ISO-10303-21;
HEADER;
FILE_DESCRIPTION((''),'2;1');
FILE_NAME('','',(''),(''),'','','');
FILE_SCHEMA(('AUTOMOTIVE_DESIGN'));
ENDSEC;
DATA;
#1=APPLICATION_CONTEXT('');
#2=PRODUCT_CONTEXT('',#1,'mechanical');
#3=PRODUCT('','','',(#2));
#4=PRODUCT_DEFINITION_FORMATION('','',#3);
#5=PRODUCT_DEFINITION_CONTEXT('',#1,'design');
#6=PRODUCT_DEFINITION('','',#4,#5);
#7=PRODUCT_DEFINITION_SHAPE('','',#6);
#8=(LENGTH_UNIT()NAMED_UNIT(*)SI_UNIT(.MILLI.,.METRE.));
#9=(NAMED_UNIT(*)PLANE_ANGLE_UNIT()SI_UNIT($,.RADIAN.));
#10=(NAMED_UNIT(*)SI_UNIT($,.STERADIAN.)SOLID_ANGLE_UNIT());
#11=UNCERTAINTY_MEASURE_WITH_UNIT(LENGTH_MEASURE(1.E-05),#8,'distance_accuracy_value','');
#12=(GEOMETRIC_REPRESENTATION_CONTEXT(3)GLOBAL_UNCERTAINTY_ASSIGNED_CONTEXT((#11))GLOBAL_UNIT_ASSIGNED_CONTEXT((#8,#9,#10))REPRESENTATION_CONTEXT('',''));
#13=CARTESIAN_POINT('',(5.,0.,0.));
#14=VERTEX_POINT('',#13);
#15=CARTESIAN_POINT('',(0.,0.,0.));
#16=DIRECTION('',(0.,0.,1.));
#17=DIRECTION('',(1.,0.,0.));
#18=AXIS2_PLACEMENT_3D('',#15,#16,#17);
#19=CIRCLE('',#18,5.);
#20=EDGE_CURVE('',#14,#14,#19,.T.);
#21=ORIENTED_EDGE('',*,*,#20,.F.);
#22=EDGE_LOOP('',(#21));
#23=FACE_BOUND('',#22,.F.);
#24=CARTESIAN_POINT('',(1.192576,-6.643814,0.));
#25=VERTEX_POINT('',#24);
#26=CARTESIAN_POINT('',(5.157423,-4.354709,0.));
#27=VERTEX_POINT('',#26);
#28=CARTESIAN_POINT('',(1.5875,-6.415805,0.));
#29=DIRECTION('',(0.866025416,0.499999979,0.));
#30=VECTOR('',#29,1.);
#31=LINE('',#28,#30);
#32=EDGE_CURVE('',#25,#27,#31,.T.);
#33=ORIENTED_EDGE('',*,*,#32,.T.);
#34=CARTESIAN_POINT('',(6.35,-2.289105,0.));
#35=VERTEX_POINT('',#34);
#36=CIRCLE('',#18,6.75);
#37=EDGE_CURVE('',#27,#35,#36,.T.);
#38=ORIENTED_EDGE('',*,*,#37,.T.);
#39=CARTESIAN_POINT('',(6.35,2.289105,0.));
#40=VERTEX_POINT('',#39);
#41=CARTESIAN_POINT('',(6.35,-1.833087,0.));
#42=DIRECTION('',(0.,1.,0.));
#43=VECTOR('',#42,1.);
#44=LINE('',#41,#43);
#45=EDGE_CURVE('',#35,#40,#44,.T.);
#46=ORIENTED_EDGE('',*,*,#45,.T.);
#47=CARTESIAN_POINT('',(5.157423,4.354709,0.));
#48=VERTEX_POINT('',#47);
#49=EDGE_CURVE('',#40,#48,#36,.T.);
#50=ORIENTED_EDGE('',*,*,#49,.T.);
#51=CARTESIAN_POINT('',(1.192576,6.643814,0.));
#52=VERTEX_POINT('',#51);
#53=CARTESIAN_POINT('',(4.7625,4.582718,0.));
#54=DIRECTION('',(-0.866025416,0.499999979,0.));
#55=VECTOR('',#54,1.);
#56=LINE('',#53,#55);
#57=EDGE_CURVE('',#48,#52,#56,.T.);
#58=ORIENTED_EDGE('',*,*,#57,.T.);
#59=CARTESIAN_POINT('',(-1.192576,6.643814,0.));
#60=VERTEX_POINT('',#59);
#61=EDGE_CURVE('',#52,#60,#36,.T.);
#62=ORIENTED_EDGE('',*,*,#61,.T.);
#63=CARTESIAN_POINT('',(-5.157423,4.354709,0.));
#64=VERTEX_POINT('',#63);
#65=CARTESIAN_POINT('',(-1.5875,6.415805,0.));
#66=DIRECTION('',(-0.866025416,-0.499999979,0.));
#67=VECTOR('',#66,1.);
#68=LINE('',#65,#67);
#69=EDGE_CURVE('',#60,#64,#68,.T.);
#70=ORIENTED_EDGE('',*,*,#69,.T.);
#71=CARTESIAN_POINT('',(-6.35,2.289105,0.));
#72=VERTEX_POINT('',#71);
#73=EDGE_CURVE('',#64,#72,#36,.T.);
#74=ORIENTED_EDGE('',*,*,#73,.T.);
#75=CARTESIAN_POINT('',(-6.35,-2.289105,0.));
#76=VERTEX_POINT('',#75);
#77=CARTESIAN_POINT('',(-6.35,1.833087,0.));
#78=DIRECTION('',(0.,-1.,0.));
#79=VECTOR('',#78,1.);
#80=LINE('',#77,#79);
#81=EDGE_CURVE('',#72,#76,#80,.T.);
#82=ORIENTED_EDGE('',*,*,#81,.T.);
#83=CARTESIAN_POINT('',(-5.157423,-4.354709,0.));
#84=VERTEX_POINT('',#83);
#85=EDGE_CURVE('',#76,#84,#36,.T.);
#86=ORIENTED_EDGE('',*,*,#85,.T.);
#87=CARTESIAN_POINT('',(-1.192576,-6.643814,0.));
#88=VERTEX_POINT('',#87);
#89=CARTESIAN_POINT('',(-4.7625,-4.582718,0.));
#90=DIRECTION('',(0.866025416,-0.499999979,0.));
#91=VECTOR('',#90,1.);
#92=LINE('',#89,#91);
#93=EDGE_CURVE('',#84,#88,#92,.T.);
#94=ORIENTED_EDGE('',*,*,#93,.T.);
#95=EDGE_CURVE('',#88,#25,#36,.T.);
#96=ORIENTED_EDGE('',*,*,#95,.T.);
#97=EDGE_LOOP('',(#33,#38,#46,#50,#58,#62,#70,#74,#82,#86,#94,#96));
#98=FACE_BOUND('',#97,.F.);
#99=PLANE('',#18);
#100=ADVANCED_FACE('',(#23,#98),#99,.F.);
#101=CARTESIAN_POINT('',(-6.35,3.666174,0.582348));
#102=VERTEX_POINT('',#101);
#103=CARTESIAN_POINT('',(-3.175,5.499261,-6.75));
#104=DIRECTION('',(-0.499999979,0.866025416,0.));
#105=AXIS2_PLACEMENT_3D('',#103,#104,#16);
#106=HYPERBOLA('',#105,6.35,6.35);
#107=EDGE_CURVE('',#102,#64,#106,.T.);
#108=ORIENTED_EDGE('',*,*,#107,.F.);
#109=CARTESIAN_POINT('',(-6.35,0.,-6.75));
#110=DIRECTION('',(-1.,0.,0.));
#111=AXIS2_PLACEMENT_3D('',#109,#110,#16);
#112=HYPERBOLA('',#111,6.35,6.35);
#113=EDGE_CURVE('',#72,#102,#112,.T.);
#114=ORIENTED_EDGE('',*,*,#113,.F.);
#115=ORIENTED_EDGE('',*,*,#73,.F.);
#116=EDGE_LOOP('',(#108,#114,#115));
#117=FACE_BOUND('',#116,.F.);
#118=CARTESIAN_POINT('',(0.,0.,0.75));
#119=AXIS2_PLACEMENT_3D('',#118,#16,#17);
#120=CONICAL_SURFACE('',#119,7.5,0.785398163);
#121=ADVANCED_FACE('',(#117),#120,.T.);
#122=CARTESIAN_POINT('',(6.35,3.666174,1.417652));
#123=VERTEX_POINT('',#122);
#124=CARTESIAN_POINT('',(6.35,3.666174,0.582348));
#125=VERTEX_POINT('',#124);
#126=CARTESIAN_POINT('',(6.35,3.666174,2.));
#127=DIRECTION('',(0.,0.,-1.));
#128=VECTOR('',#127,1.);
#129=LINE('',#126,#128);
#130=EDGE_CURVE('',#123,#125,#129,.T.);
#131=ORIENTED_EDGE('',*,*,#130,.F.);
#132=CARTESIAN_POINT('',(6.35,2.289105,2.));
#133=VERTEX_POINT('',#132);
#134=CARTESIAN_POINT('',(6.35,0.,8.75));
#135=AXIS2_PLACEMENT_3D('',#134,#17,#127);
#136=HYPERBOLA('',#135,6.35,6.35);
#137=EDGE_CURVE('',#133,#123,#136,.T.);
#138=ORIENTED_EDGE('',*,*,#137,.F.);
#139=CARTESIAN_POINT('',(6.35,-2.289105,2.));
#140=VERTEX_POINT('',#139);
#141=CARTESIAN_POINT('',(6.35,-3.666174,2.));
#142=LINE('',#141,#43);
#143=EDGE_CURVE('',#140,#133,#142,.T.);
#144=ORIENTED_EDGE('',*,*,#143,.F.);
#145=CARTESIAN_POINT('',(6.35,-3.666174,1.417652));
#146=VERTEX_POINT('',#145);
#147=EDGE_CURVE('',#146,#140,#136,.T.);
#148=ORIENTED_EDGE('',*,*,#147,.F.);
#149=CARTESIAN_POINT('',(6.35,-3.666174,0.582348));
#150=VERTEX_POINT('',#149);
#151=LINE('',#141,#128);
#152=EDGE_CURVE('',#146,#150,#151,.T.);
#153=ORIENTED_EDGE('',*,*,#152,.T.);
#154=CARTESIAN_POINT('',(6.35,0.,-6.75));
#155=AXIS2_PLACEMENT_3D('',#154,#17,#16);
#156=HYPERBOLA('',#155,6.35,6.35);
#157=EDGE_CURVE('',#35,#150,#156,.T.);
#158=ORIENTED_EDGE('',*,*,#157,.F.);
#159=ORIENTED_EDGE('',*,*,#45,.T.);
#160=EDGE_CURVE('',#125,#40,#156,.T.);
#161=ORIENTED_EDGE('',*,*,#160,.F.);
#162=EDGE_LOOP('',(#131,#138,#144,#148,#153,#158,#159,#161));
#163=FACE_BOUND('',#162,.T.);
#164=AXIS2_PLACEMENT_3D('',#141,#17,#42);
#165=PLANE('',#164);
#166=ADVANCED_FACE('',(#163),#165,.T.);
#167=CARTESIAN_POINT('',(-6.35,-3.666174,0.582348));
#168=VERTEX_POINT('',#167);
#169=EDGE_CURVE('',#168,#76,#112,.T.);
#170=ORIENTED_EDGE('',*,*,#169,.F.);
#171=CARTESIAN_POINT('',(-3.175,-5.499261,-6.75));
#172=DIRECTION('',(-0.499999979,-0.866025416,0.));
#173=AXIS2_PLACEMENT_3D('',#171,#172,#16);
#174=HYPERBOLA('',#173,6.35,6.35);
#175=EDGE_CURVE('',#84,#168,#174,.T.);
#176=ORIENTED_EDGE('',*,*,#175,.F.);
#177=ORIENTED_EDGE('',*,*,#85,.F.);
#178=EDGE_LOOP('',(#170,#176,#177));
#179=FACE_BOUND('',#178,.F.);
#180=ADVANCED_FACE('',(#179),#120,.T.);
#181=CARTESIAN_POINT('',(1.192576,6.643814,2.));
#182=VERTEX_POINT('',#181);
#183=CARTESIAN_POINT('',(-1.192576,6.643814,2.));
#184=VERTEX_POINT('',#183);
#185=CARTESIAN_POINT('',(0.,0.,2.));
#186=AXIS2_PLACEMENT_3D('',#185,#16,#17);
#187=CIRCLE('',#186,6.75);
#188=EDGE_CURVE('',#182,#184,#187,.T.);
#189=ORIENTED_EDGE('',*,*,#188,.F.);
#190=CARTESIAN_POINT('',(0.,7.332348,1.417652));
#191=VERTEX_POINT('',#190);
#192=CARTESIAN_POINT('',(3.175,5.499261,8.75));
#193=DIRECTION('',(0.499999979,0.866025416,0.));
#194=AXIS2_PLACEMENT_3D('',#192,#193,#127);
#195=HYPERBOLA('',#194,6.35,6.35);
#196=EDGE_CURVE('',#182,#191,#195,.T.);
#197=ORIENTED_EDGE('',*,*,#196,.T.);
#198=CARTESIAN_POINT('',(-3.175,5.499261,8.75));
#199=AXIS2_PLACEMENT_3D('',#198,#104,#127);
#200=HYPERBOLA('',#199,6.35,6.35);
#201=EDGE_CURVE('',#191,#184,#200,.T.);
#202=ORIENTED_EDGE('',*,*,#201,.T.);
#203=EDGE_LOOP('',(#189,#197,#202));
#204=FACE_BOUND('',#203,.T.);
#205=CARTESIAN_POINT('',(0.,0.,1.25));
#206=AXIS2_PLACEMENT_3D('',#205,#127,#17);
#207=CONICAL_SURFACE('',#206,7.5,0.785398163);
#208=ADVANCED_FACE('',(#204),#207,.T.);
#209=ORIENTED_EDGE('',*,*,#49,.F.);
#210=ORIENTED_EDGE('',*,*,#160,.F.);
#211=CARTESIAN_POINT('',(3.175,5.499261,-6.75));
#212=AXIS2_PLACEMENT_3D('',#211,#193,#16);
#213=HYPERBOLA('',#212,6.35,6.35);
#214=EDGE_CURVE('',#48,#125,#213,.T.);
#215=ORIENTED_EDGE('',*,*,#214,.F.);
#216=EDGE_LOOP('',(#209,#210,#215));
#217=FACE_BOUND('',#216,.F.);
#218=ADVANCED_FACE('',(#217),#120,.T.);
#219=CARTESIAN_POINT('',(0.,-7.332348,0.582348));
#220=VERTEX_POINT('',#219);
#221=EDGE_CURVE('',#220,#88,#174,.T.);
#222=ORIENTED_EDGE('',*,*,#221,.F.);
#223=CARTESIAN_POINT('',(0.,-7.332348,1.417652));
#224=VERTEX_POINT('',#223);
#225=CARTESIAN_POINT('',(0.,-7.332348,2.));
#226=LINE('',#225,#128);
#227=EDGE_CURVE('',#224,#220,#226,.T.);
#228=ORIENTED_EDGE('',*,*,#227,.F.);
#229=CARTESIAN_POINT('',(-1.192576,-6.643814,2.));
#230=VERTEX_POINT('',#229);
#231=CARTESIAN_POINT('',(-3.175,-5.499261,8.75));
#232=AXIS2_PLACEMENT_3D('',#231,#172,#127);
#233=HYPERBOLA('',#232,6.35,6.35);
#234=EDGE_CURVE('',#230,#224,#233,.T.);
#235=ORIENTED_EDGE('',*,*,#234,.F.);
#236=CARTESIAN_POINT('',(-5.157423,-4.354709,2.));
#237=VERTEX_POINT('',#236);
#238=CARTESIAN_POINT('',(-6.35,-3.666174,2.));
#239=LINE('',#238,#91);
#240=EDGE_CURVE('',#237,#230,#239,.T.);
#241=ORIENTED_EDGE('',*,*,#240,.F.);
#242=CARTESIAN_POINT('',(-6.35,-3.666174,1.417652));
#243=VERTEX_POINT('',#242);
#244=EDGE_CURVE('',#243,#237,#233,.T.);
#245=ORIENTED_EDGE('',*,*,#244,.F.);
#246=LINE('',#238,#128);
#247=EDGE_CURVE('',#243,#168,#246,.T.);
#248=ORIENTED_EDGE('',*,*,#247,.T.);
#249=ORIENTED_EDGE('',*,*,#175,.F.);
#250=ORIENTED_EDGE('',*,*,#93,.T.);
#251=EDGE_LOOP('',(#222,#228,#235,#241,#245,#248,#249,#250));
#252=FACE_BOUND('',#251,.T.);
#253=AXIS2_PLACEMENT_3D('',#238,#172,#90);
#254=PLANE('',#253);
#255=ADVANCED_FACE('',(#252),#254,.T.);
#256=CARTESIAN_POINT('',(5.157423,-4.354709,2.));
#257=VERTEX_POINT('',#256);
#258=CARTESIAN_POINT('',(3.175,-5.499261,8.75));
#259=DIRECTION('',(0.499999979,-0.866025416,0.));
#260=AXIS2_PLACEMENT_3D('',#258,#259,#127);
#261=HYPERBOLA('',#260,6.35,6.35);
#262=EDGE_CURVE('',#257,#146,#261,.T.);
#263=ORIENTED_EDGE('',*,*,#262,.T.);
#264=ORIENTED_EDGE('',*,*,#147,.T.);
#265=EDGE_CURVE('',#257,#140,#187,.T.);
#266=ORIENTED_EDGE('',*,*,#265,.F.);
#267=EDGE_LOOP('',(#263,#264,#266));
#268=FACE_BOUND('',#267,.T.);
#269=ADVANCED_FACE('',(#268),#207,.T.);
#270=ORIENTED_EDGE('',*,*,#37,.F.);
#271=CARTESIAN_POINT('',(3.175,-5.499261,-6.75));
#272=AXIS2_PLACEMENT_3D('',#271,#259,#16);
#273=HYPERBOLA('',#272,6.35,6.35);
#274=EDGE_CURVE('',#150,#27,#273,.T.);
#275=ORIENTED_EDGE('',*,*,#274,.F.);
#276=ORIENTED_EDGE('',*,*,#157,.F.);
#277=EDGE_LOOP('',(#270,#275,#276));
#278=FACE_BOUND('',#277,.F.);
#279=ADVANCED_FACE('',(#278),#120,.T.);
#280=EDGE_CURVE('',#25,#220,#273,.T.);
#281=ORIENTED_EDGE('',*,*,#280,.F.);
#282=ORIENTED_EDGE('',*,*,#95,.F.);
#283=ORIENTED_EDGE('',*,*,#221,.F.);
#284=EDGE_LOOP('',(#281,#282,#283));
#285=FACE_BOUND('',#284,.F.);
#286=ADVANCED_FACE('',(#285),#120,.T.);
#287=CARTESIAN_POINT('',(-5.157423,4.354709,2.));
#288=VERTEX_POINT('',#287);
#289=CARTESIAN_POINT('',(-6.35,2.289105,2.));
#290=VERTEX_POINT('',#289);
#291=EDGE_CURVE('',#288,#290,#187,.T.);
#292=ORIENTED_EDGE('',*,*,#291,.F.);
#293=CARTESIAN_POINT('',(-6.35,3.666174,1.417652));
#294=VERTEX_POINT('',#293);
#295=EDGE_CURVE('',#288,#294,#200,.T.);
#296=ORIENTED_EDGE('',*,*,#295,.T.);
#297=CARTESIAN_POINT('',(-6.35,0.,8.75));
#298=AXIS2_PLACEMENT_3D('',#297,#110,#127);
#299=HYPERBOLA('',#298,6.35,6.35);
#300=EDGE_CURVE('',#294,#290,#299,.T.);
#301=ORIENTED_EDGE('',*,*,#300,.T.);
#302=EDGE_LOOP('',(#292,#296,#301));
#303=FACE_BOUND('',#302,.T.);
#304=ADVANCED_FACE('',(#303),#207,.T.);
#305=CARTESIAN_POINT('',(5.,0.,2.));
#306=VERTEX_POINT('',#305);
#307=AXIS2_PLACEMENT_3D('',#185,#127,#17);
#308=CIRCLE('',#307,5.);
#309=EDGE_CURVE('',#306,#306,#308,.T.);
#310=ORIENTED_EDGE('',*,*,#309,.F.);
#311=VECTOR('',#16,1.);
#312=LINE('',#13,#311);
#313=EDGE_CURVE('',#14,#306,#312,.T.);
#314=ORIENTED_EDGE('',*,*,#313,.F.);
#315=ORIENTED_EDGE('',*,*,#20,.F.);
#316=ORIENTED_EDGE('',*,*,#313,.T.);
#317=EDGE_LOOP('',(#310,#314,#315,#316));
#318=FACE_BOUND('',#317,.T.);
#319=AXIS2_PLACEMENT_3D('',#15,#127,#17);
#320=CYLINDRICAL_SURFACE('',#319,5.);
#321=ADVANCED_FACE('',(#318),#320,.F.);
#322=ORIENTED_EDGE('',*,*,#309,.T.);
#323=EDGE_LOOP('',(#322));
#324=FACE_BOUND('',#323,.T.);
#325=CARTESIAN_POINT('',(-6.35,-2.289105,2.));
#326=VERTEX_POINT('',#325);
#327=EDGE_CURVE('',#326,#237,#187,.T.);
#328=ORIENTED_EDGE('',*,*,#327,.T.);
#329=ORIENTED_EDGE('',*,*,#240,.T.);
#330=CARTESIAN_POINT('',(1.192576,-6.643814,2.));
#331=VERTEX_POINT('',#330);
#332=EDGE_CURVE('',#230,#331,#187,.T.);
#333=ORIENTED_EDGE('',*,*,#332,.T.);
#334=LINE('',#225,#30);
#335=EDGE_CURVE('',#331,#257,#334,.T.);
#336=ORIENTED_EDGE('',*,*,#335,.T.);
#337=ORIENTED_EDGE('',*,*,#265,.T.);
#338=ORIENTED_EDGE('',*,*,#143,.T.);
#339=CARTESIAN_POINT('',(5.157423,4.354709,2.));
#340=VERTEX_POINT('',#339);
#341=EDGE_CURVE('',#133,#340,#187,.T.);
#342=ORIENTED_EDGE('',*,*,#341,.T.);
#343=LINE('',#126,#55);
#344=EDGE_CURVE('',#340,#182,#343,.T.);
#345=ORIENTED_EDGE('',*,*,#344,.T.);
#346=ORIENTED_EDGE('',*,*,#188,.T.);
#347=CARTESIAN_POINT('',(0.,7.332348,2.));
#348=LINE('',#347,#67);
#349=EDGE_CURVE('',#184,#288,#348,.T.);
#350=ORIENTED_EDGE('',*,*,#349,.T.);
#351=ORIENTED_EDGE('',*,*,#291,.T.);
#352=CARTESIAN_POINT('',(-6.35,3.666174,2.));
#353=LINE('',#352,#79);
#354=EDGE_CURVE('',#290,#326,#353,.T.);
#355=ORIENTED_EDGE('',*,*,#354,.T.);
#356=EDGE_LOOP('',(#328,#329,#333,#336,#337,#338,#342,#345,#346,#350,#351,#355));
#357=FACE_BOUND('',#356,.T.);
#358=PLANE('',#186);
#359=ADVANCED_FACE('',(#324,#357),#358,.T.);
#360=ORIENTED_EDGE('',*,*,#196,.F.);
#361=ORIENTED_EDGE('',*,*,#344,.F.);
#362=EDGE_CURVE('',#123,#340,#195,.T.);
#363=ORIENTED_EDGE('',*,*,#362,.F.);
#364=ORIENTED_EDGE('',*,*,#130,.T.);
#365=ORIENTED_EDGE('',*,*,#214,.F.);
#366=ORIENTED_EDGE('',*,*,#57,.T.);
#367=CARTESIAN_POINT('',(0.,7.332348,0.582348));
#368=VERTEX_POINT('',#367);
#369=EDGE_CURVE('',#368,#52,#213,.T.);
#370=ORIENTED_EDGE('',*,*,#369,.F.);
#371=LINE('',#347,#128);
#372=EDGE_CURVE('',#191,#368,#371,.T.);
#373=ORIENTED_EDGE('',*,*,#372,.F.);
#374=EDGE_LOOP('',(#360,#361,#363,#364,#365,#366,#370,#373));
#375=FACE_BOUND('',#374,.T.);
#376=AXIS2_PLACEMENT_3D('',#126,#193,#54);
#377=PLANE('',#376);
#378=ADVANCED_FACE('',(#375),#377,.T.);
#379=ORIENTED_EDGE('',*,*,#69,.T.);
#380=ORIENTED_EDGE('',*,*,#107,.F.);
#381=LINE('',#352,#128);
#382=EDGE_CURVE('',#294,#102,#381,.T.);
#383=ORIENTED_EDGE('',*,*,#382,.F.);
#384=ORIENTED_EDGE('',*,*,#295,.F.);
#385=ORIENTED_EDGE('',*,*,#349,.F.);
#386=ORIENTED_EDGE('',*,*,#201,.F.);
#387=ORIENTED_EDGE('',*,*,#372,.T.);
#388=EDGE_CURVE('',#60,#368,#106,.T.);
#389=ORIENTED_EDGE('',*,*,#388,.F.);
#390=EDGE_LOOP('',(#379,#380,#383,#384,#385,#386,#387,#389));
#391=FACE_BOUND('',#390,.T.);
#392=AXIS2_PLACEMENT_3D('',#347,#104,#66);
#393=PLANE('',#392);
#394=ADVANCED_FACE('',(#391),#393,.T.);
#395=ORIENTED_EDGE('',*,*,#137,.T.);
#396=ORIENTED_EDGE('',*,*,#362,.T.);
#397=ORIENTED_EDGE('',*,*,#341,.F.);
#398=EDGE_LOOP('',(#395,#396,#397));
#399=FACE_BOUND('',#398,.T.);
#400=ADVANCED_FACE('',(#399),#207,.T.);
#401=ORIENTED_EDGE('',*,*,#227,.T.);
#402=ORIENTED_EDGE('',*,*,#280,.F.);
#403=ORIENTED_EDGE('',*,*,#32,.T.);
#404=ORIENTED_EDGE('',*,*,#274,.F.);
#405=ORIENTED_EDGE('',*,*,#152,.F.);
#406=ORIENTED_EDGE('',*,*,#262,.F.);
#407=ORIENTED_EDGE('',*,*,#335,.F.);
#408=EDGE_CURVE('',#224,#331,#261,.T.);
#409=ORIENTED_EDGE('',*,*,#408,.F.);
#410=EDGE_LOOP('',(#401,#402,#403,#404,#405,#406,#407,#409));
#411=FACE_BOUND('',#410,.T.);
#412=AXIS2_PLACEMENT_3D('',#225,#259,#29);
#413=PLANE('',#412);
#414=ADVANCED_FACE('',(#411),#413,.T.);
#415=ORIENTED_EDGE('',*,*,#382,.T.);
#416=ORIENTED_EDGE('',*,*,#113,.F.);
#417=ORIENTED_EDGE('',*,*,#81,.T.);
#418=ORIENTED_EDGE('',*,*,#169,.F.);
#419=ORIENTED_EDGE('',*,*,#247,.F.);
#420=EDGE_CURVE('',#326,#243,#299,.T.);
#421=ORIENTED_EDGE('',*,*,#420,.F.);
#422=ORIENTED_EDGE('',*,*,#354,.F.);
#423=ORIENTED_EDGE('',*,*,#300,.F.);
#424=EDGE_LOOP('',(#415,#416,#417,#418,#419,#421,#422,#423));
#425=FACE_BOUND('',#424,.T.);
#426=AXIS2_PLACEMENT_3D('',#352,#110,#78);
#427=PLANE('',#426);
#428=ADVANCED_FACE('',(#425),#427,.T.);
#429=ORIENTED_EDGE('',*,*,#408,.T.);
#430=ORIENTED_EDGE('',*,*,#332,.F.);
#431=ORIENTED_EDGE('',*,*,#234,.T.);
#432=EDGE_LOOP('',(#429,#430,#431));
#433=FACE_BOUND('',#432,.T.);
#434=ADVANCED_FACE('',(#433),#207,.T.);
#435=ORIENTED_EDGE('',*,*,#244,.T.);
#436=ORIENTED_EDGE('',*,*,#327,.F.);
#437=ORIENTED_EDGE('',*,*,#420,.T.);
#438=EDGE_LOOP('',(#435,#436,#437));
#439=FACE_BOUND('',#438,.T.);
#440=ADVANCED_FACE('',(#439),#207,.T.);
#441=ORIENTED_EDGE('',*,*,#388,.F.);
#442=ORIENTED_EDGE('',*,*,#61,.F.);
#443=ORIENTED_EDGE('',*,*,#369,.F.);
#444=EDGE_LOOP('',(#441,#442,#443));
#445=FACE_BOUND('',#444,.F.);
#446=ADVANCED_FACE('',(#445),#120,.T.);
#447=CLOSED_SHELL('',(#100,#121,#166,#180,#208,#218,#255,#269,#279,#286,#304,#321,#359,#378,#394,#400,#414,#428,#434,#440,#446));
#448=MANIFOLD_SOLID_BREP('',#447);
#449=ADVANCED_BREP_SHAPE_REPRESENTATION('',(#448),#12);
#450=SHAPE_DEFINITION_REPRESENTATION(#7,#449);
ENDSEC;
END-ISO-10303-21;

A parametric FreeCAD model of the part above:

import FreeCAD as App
import Part
import Sketcher

V = App.Vector
Q = App.Units.Quantity


def edges_at(feature, points):
    """Names of the edges that pass closest to the given points."""
    edges = feature.Shape.Edges
    near = lambda p: min(range(len(edges)), key=lambda i: edges[i].distToShape(Part.Vertex(*p))[0])
    return sorted({f"Edge{near(p) + 1}" for p in points})


def add_polygon(sketch, points):
    """Adds a closed chain of lines whose ends are joined by coincident constraints."""
    first, n = sketch.GeometryCount, len(points)
    for a, b in zip(points, points[1:] + points[:1]):
        sketch.addGeometry(Part.LineSegment(App.Vector(*a, 0), App.Vector(*b, 0)), False)
    for i in range(n):
        sketch.addConstraint(Sketcher.Constraint("Coincident", first + i, 2, first + (i + 1) % n, 1))

doc = App.newDocument("Part")
body = doc.addObject("PartDesign::Body", "Body")

# Sketch on XY plane
sketch1 = body.newObject("Sketcher::SketchObject", "Sketch")
sketch1.AttachmentSupport = (doc.getObject("XY_Plane"), [""])
sketch1.MapMode = "FlatFace"
sketch1.addGeometry(Part.Circle(V(0, 0, 0), V(0, 0, 1), 8), False)
sketch1.addConstraint([
    Sketcher.Constraint("Coincident", 0, 3, -1, 1),
    Sketcher.Constraint("Diameter", 0, Q("15 mm")),
])
pad1 = body.newObject("PartDesign::Pad", "Pad")
pad1.Profile = sketch1
pad1.Length = 2
doc.recompute()

chamfer = body.newObject("PartDesign::Chamfer", "Chamfer")
chamfer.Base = (pad1, edges_at(pad1, [(-7.5, 0, 2)]))
chamfer.Size = 0.75
doc.recompute()

chamfer2 = body.newObject("PartDesign::Chamfer", "Chamfer001")
chamfer2.Base = (chamfer, edges_at(chamfer, [(-7.5, 0, 0)]))
chamfer2.Size = 0.75

# Sketch on XY plane
sketch2 = body.newObject("Sketcher::SketchObject", "Sketch001")
sketch2.AttachmentSupport = (doc.getObject("XY_Plane"), [""])
sketch2.MapMode = "FlatFace"
sketch2.AttachmentOffset = App.Placement(V(0, 0, 2), App.Rotation())
sketch2.addGeometry(Part.Circle(V(0, 0, 0), V(0, 0, 1), 8), False)  # 0
add_polygon(sketch2, [(-6, 4), (0, 7), (6, 4), (6, -4), (0, -7), (-6, -4)])  # lines 1-6
sketch2.addConstraint([
    Sketcher.Constraint("Vertical", 3),
    Sketcher.Constraint("Vertical", 6),
    Sketcher.Constraint("Coincident", 0, 3, -1, 1),
    Sketcher.Constraint("Symmetric", 1, 2, 4, 2, -1, 1),
    Sketcher.Constraint("Symmetric", 2, 2, 5, 2, -1, 1),
    Sketcher.Constraint("PointOnObject", 1, 2, -2),
    Sketcher.Constraint("Parallel", 1, 4),
    Sketcher.Constraint("Horizontal", 3, 2, 5, 2),
    Sketcher.Constraint("Angle", 1, Q("29.999999 deg")),
    Sketcher.Constraint("DistanceX", 5, 2, 3, 2, Q("12.7 mm")),
    Sketcher.Constraint("Diameter", 0, Q("16.802558 mm")),
    Sketcher.Constraint("DistanceY", 3, 2, 3, 1, Q("7.332348 mm")),
])
pocket1 = body.newObject("PartDesign::Pocket", "Pocket")
pocket1.Profile = sketch2
pocket1.Type = "ThroughAll"
pocket1.Midplane = True

# Sketch on XY plane
sketch3 = body.newObject("Sketcher::SketchObject", "Sketch002")
sketch3.AttachmentSupport = (doc.getObject("XY_Plane"), [""])
sketch3.MapMode = "FlatFace"
sketch3.addGeometry(Part.Circle(V(0, 0, 0), V(0, 0, 1), 5), False)
sketch3.addConstraint([
    Sketcher.Constraint("Coincident", 0, 3, -1, 1),
    Sketcher.Constraint("Diameter", 0, Q("10 mm")),
])
pocket2 = body.newObject("PartDesign::Pocket", "Pocket001")
pocket2.Profile = sketch3
pocket2.Type = "ThroughAll"
pocket2.Midplane = True

doc.recompute()
